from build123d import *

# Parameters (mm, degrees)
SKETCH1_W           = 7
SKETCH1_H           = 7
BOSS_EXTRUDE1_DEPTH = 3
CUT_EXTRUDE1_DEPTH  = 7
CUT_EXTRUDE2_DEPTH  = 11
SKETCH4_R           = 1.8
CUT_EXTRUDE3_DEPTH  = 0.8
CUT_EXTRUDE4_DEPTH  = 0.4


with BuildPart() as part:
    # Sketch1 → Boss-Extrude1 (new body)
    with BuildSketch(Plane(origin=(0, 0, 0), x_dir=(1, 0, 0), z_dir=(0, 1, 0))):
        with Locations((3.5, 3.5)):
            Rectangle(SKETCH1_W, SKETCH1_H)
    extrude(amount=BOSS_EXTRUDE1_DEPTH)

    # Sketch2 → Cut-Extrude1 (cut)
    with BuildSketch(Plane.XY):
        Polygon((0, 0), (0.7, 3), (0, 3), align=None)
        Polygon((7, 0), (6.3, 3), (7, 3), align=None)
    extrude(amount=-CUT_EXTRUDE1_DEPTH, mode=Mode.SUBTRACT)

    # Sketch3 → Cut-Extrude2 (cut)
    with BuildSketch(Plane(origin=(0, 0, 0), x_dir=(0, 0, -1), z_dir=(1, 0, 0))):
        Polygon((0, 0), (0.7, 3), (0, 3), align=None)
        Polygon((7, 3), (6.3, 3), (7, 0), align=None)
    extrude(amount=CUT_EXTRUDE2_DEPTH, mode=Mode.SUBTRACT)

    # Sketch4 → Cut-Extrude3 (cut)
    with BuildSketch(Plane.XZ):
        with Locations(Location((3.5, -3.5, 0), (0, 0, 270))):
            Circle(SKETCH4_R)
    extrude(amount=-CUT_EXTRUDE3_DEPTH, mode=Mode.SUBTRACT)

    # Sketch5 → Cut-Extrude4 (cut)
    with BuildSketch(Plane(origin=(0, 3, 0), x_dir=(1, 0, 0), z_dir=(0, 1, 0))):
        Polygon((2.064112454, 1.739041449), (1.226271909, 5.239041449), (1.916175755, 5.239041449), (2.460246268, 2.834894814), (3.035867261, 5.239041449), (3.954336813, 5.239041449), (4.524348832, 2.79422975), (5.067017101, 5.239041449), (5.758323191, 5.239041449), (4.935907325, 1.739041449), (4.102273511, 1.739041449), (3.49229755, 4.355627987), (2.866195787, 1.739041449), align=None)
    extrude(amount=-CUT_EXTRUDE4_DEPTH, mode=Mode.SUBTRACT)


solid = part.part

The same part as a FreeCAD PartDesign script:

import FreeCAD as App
import Part
import Sketcher
from FreeCAD import Vector
Q = App.Units.Quantity

doc = App.newDocument("Part")
body = doc.addObject("PartDesign::Body", "Body")

# Sketch on XZ plane
sketch1 = body.newObject("Sketcher::SketchObject", "Sketch")
sketch1.AttachmentSupport = (doc.getObject("XZ_Plane"), [""])
sketch1.MapMode = "FlatFace"
sketch1.addGeometry([
    Part.LineSegment(Vector(0, -7, 0), Vector(0, 0, 0)),
    Part.LineSegment(Vector(0, 0, 0), Vector(7, 0, 0)),
    Part.LineSegment(Vector(7, 0, 0), Vector(7, -7, 0)),
    Part.LineSegment(Vector(7, -7, 0), Vector(0, -7, 0)),
], False)
sketch1.addConstraint([
    Sketcher.Constraint("Coincident", 0, 2, 1, 1),
    Sketcher.Constraint("Coincident", 1, 2, 2, 1),
    Sketcher.Constraint("Coincident", 2, 2, 3, 1),
    Sketcher.Constraint("Coincident", 3, 2, 0, 1),
    Sketcher.Constraint("Vertical", 0),
    Sketcher.Constraint("Horizontal", 1),
    Sketcher.Constraint("Vertical", 2),
    Sketcher.Constraint("Horizontal", 3),
    Sketcher.Constraint("Coincident", 0, 2, -1, 1),
    Sketcher.Constraint("Equal", 3, 0),
    Sketcher.Constraint("DistanceX", 1, 1, 1, 2, Q("7 mm")),
])
pad1 = body.newObject("PartDesign::Pad", "Pad")
pad1.Profile = sketch1
pad1.Length = 3
pad1.Reversed = True

# Sketch on XY plane
sketch2 = body.newObject("Sketcher::SketchObject", "Sketch001")
sketch2.AttachmentSupport = (doc.getObject("XY_Plane"), [""])
sketch2.MapMode = "FlatFace"
sketch2.addGeometry([
    Part.LineSegment(Vector(0, 0, 0), Vector(0.7, 3, 0)),  # 0
    Part.LineSegment(Vector(0.7, 3, 0), Vector(0, 3, 0)),  # 1
    Part.LineSegment(Vector(0, 3, 0), Vector(0, 0, 0)),  # 2
    Part.LineSegment(Vector(6.3, 3, 0), Vector(7, 0, 0)),  # 3
    Part.LineSegment(Vector(7, 0, 0), Vector(7, 3, 0)),  # 4
    Part.LineSegment(Vector(7, 3, 0), Vector(6.3, 3, 0)),  # 5
], False)
sketch2.addConstraint([
    Sketcher.Constraint("Coincident", 0, 2, 1, 1),
    Sketcher.Constraint("Coincident", 1, 2, 2, 1),
    Sketcher.Constraint("Coincident", 2, 2, 0, 1),
    Sketcher.Constraint("Coincident", 3, 2, 4, 1),
    Sketcher.Constraint("Coincident", 4, 2, 5, 1),
    Sketcher.Constraint("Coincident", 5, 2, 3, 1),
    Sketcher.Constraint("Horizontal", 1),
    Sketcher.Constraint("Vertical", 2),
    Sketcher.Constraint("Vertical", 4),
    Sketcher.Constraint("Horizontal", 5),
    Sketcher.Constraint("Coincident", 2, 2, -1, 1),
    Sketcher.Constraint("PointOnObject", 3, 2, -1),
    Sketcher.Constraint("Horizontal", 1, 2, 4, 2),
    Sketcher.Constraint("Equal", 1, 5),
    Sketcher.Constraint("DistanceY", 2, 2, 2, 1, Q("3 mm")),
    Sketcher.Constraint("DistanceX", 1, 2, 1, 1, Q("0.7 mm")),
    Sketcher.Constraint("DistanceX", -1, 1, 3, 2, Q("7 mm")),
])
pocket1 = body.newObject("PartDesign::Pocket", "Pocket")
pocket1.Profile = sketch2
pocket1.Length = 7

# Sketch on YZ plane
sketch3 = body.newObject("Sketcher::SketchObject", "Sketch002")
sketch3.AttachmentSupport = (doc.getObject("YZ_Plane"), [""])
sketch3.MapMode = "FlatFace"
sketch3.addGeometry([
    Part.LineSegment(Vector(0, 0, 0), Vector(3, -0.7, 0)),  # 0
    Part.LineSegment(Vector(3, -0.7, 0), Vector(3, 0, 0)),  # 1
    Part.LineSegment(Vector(3, 0, 0), Vector(0, 0, 0)),  # 2
    Part.LineSegment(Vector(3, -7, 0), Vector(3, -6.3, 0)),  # 3
    Part.LineSegment(Vector(3, -6.3, 0), Vector(0, -7, 0)),  # 4
    Part.LineSegment(Vector(0, -7, 0), Vector(3, -7, 0)),  # 5
], False)
sketch3.addConstraint([
    Sketcher.Constraint("Coincident", 0, 2, 1, 1),
    Sketcher.Constraint("Coincident", 1, 2, 2, 1),
    Sketcher.Constraint("Coincident", 2, 2, 0, 1),
    Sketcher.Constraint("Coincident", 3, 2, 4, 1),
    Sketcher.Constraint("Coincident", 4, 2, 5, 1),
    Sketcher.Constraint("Coincident", 5, 2, 3, 1),
    Sketcher.Constraint("Vertical", 1),
    Sketcher.Constraint("Horizontal", 2),
    Sketcher.Constraint("Vertical", 3),
    Sketcher.Constraint("Horizontal", 5),
    Sketcher.Constraint("Coincident", 2, 2, -1, 1),
    Sketcher.Constraint("PointOnObject", 4, 2, -2),
    Sketcher.Constraint("Vertical", 1, 2, 3, 2),
    Sketcher.Constraint("Equal", 1, 3),
    Sketcher.Constraint("DistanceX", 2, 2, 2, 1, Q("3 mm")),
    Sketcher.Constraint("DistanceY", 1, 1, 1, 2, Q("0.7 mm")),
    Sketcher.Constraint("DistanceY", 4, 2, -1, 1, Q("7 mm")),
])
pocket2 = body.newObject("PartDesign::Pocket", "Pocket001")
pocket2.Profile = sketch3
pocket2.Length = 11
pocket2.Reversed = True

# Sketch on XZ plane
sketch4 = body.newObject("Sketcher::SketchObject", "Sketch003")
sketch4.AttachmentSupport = (doc.getObject("XZ_Plane"), [""])
sketch4.MapMode = "FlatFace"
sketch4.addGeometry(Part.Circle(Vector(3.5, -3.5, 0), Vector(0, 0, 1), 1.8), False)
sketch4.addConstraint([
    Sketcher.Constraint("Diameter", 0, Q("3.6 mm")),
    Sketcher.Constraint("DistanceX", -1, 1, 0, 3, Q("3.5 mm")),
    Sketcher.Constraint("DistanceY", 0, 3, -1, 1, Q("3.5 mm")),
])
pocket3 = body.newObject("PartDesign::Pocket", "Pocket002")
pocket3.Profile = sketch4
pocket3.Length = 0.8

# Sketch on XZ plane
sketch5 = body.newObject("Sketcher::SketchObject", "Sketch004")
sketch5.AttachmentSupport = (doc.getObject("XZ_Plane"), [""])
sketch5.MapMode = "FlatFace"
sketch5.AttachmentOffset = App.Placement(Vector(0, 0, -3), App.Rotation())
sketch5.addGeometry([
    Part.LineSegment(Vector(1.226272, -5.239041, 0), Vector(2.064112, -1.739041, 0)),  # 0
    Part.LineSegment(Vector(2.064112, -1.739041, 0), Vector(2.866196, -1.739041, 0)),  # 1
    Part.LineSegment(Vector(2.866196, -1.739041, 0), Vector(3.492298, -4.355628, 0)),  # 2
    Part.LineSegment(Vector(3.492298, -4.355628, 0), Vector(4.102274, -1.739041, 0)),  # 3
    Part.LineSegment(Vector(4.102274, -1.739041, 0), Vector(4.935907, -1.739041, 0)),  # 4
    Part.LineSegment(Vector(4.935907, -1.739041, 0), Vector(5.758323, -5.239041, 0)),  # 5
    Part.LineSegment(Vector(5.758323, -5.239041, 0), Vector(5.067017, -5.239041, 0)),  # 6
    Part.LineSegment(Vector(5.067017, -5.239041, 0), Vector(4.524349, -2.79423, 0)),  # 7
    Part.LineSegment(Vector(4.524349, -2.79423, 0), Vector(3.954337, -5.239041, 0)),  # 8
    Part.LineSegment(Vector(3.954337, -5.239041, 0), Vector(3.035867, -5.239041, 0)),  # 9
    Part.LineSegment(Vector(3.035867, -5.239041, 0), Vector(2.460246, -2.834895, 0)),  # 10
    Part.LineSegment(Vector(2.460246, -2.834895, 0), Vector(1.916176, -5.239041, 0)),  # 11
    Part.LineSegment(Vector(1.916176, -5.239041, 0), Vector(1.226272, -5.239041, 0)),  # 12
], False)
sketch5.addConstraint([
    Sketcher.Constraint("Coincident", 0, 2, 1, 1),
    Sketcher.Constraint("Coincident", 1, 2, 2, 1),
    Sketcher.Constraint("Coincident", 2, 2, 3, 1),
    Sketcher.Constraint("Coincident", 3, 2, 4, 1),
    Sketcher.Constraint("Coincident", 4, 2, 5, 1),
    Sketcher.Constraint("Coincident", 5, 2, 6, 1),
    Sketcher.Constraint("Coincident", 6, 2, 7, 1),
    Sketcher.Constraint("Coincident", 7, 2, 8, 1),
    Sketcher.Constraint("Coincident", 8, 2, 9, 1),
    Sketcher.Constraint("Coincident", 9, 2, 10, 1),
    Sketcher.Constraint("Coincident", 10, 2, 11, 1),
    Sketcher.Constraint("Coincident", 11, 2, 12, 1),
    Sketcher.Constraint("Coincident", 12, 2, 0, 1),
    Sketcher.Constraint("Horizontal", 1),
    Sketcher.Constraint("Horizontal", 4),
    Sketcher.Constraint("Horizontal", 6),
    Sketcher.Constraint("Horizontal", 9),
    Sketcher.Constraint("Horizontal", 12),
    Sketcher.Constraint("Horizontal", 1, 2, 3, 2),
    Sketcher.Constraint("Horizontal", 6, 2, 8, 2),
    Sketcher.Constraint("Horizontal", 9, 2, 11, 2),
    Sketcher.Constraint("DistanceY", 5, 2, 4, 2, Q("3.5 mm")),
    Sketcher.Constraint("DistanceX", 9, 2, 9, 1, Q("0.91847 mm")),
    Sketcher.Constraint("DistanceX", 1, 2, 2, 2, Q("0.626102 mm")),
    Sketcher.Constraint("DistanceY", 2, 2, 7, 2, Q("1.561398 mm")),
    Sketcher.Constraint("Distance", 2, Q("2.690451 mm")),
    Sketcher.Constraint("Distance", 11, Q("2.464941 mm")),
    Sketcher.Constraint("DistanceX", 1, 1, 1, 2, Q("0.802083 mm")),
    Sketcher.Constraint("DistanceX", 4, 1, 4, 2, Q("0.833634 mm")),
    Sketcher.Constraint("DistanceX", 6, 2, 6, 1, Q("0.691306 mm")),
    Sketcher.Constraint("DistanceX", 12, 2, 12, 1, Q("0.689904 mm")),
    Sketcher.Constraint("DistanceY", 0, 2, -1, 1, Q("1.739041 mm")),
    Sketcher.Constraint("DistanceX", -1, 1, 7, 2, Q("4.524349 mm")),
    Sketcher.Constraint("DistanceX", -1, 1, 12, 2, Q("1.226272 mm")),
    Sketcher.Constraint("DistanceX", 0, 2, 3, 2, Q("2.038161 mm")),
    Sketcher.Constraint("DistanceX", 3, 2, 5, 2, Q("1.65605 mm")),
    Sketcher.Constraint("DistanceX", 7, 2, 4, 2, Q("0.411558 mm")),
    Sketcher.Constraint("DistanceX", 2, 2, 8, 2, Q("0.462039 mm")),
    Sketcher.Constraint("DistanceX", 10, 2, 1, 2, Q("0.40595 mm")),
])
pocket4 = body.newObject("PartDesign::Pocket", "Pocket003")
pocket4.Profile = sketch5
pocket4.Length = 0.4
pocket4.Reversed = True

doc.recompute()
